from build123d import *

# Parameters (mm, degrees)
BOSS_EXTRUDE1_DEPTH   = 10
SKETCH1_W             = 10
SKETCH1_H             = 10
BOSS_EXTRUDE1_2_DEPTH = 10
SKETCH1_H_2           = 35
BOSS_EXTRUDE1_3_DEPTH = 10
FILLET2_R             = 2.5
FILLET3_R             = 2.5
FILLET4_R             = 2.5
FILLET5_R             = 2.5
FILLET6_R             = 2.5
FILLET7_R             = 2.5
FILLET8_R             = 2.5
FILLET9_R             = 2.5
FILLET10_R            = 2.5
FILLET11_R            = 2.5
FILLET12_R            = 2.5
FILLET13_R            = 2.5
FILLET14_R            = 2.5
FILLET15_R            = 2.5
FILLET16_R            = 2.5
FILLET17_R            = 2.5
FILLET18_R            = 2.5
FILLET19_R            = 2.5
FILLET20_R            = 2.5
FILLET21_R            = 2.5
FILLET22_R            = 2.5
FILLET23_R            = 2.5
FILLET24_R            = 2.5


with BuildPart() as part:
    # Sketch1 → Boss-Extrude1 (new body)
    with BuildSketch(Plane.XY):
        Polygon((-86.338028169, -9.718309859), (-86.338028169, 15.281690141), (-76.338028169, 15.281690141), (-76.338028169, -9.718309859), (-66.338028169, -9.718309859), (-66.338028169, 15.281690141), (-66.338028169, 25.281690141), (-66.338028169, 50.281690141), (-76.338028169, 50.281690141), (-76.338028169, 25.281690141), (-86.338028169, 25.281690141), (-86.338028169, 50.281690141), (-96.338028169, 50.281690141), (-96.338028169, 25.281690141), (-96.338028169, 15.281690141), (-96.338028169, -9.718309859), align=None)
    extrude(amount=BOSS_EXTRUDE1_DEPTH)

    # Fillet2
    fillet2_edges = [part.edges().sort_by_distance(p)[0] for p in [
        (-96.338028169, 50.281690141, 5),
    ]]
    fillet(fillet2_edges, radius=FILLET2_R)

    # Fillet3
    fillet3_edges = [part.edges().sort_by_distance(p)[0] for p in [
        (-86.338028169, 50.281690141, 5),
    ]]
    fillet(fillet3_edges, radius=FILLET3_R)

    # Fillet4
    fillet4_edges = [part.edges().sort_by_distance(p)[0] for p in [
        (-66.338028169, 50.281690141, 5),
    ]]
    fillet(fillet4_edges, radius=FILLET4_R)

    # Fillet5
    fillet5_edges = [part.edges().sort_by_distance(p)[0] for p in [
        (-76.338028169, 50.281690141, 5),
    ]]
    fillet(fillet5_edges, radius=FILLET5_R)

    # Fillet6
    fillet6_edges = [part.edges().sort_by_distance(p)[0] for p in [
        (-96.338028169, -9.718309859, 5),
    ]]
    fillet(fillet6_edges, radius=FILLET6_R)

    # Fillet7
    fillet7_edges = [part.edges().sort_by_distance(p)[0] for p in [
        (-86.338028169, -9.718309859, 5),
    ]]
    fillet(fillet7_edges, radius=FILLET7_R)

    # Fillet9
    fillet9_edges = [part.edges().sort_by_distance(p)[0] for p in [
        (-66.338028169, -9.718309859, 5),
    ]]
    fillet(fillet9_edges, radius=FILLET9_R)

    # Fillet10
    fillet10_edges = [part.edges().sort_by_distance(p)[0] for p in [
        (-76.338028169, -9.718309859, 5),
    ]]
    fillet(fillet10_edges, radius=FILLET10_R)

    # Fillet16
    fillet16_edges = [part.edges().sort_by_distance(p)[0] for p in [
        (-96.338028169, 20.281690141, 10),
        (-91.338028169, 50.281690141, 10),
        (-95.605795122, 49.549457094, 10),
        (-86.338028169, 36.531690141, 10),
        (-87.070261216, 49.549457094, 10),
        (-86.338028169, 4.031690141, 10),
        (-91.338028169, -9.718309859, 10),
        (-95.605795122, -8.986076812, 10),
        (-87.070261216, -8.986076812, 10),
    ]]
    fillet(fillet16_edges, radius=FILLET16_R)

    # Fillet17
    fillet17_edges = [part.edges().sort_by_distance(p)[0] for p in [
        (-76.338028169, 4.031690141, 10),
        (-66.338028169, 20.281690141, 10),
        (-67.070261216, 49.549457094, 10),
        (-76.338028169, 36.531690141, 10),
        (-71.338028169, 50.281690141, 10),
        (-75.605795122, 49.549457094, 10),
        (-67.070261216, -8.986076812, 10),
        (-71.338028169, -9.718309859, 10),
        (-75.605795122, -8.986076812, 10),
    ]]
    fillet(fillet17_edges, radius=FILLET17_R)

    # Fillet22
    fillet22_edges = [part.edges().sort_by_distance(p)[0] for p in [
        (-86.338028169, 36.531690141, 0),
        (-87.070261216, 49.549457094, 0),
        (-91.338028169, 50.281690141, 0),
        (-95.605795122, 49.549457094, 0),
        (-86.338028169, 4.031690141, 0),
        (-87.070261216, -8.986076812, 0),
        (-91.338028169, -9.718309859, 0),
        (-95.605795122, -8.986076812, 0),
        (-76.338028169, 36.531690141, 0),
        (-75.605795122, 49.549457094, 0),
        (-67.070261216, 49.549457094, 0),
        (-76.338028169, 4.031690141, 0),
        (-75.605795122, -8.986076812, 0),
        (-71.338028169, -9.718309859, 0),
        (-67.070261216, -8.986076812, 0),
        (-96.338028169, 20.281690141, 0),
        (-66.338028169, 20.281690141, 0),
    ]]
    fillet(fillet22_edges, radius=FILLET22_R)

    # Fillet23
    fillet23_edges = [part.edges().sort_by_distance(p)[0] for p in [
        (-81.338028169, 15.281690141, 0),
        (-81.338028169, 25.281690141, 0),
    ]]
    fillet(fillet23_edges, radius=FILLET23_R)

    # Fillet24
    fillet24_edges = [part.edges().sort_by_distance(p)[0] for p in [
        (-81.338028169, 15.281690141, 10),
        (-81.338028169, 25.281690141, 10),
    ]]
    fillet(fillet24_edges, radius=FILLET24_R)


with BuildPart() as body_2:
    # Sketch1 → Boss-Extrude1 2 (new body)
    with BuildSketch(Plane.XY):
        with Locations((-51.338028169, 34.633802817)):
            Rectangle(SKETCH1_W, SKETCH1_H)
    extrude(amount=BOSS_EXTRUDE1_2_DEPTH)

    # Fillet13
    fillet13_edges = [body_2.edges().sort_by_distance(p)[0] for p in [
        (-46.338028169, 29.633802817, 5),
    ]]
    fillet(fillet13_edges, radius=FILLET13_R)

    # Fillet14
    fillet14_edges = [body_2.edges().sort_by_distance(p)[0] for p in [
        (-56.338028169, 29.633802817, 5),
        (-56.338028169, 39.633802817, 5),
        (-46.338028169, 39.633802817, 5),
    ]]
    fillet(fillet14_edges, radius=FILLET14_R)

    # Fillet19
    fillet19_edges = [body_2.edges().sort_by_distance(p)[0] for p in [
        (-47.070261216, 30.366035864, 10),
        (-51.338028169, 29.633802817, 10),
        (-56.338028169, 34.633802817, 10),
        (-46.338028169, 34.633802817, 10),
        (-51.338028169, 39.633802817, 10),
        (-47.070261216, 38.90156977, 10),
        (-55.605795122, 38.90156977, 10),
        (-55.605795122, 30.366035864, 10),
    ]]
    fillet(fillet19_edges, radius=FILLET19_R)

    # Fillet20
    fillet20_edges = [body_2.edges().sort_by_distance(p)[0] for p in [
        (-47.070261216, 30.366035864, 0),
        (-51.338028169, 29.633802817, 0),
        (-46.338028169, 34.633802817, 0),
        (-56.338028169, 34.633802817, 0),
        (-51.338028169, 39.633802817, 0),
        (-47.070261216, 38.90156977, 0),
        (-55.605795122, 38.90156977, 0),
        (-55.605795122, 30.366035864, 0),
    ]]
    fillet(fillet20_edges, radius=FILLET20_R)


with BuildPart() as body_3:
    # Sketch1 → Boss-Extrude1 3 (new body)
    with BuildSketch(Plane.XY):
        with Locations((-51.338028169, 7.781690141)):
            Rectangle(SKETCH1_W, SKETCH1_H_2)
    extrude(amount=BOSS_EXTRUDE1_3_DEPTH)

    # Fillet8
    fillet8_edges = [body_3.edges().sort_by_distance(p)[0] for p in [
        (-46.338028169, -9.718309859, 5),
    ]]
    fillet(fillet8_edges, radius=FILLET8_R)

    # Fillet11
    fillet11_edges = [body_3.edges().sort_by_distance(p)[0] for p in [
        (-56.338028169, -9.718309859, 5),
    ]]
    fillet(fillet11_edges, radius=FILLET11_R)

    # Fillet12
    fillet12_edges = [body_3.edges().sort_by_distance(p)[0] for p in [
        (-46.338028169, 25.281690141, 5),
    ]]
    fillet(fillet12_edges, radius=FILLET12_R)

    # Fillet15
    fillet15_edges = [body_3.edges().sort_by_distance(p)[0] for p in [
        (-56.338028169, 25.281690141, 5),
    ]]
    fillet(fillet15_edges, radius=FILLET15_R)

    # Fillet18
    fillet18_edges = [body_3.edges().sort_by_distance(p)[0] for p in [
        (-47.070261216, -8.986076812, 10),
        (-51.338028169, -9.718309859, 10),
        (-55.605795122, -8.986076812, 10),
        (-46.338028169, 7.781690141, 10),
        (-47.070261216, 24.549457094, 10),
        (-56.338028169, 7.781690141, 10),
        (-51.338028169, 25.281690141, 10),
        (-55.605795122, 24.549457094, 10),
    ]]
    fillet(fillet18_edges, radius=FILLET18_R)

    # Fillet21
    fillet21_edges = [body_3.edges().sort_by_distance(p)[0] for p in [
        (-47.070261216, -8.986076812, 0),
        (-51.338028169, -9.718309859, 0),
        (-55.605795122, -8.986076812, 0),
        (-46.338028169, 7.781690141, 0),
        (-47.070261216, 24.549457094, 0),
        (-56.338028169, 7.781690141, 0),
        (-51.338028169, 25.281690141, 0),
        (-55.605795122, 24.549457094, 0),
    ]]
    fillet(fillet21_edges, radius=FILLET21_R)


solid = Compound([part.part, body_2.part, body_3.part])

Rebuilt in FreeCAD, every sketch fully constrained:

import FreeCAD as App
import Part
import Sketcher
Q = App.Units.Quantity


def edges_at(feature, points):
    """Names of the edges that pass closest to the given points."""
    edges = feature.Shape.Edges
    near = lambda p: min(range(len(edges)), key=lambda i: edges[i].distToShape(Part.Vertex(*p))[0])
    return sorted({f"Edge{near(p) + 1}" for p in points})


def add_polygon(sketch, points):
    """Adds a closed chain of lines whose ends are joined by coincident constraints."""
    first, n = sketch.GeometryCount, len(points)
    for a, b in zip(points, points[1:] + points[:1]):
        sketch.addGeometry(Part.LineSegment(App.Vector(*a, 0), App.Vector(*b, 0)), False)
    for i in range(n):
        sketch.addConstraint(Sketcher.Constraint("Coincident", first + i, 2, first + (i + 1) % n, 1))

doc = App.newDocument("Part")
params = doc.addObject("Spreadsheet::Sheet", "Params")
for row, (alias, value) in enumerate([
    ("sketch1_width", "10 mm"),
    ("sketch1_height", "25 mm"),
    ("sketch1_height2", "60 mm"),
    ("pad1_length", "10 mm"),
    ("fillet_radius", "2.5 mm"),
    ("fillet2_radius", "2.5 mm"),
    ("fillet3_radius", "2.5 mm"),
    ("fillet4_radius", "2.5 mm"),
    ("fillet5_radius", "2.5 mm"),
    ("fillet6_radius", "2.5 mm"),
    ("fillet7_radius", "2.5 mm"),
    ("fillet8_radius", "2.5 mm"),
    ("fillet9_radius", "2.5 mm"),
    ("fillet10_radius", "2.5 mm"),
    ("fillet11_radius", "2.5 mm"),
    ("fillet12_radius", "2.5 mm"),
    ("fillet13_radius", "2.5 mm"),
    ("sketch2_width", "10 mm"),
    ("pad2_length", "10 mm"),
    ("fillet14_radius", "2.5 mm"),
    ("fillet15_radius", "2.5 mm"),
    ("fillet16_radius", "2.5 mm"),
    ("fillet17_radius", "2.5 mm"),
    ("sketch3_width", "10 mm"),
    ("sketch3_height", "35 mm"),
    ("pad3_length", "10 mm"),
    ("fillet18_radius", "2.5 mm"),
    ("fillet19_radius", "2.5 mm"),
    ("fillet20_radius", "2.5 mm"),
    ("fillet21_radius", "2.5 mm"),
    ("fillet22_radius", "2.5 mm"),
    ("fillet23_radius", "2.5 mm"),
], start=1):
    params.set(f"A{row}", alias)
    params.set(f"B{row}", "=" + value)
    params.setAlias(f"B{row}", alias)

body = doc.addObject("PartDesign::Body", "Body")

# Sketch on XY plane
sketch1 = body.newObject("Sketcher::SketchObject", "Sketch")
sketch1.AttachmentSupport = (doc.getObject("XY_Plane"), [""])
sketch1.MapMode = "FlatFace"
add_polygon(sketch1, [(-86, -10), (-86, 15), (-76, 15), (-76, -10), (-66, -10), (-66, 50), (-76, 50), (-76, 25), (-86, 25), (-86, 50), (-96, 50), (-96, -10)])  # lines 0-11
sketch1.addConstraint(Sketcher.Constraint("Vertical", 0))
sketch1.addConstraint(Sketcher.Constraint("Horizontal", 1))
sketch1.addConstraint(Sketcher.Constraint("Vertical", 2))
sketch1.addConstraint(Sketcher.Constraint("Horizontal", 3))
sketch1.addConstraint(Sketcher.Constraint("Vertical", 4))
sketch1.addConstraint(Sketcher.Constraint("Horizontal", 5))
sketch1.addConstraint(Sketcher.Constraint("Vertical", 6))
sketch1.addConstraint(Sketcher.Constraint("Horizontal", 7))
sketch1.addConstraint(Sketcher.Constraint("Vertical", 8))
sketch1.addConstraint(Sketcher.Constraint("Horizontal", 9))
sketch1.addConstraint(Sketcher.Constraint("Vertical", 10))
sketch1.addConstraint(Sketcher.Constraint("Horizontal", 11))
sketch1.addConstraint(Sketcher.Constraint("Horizontal", 5, 2, 8, 2))
sketch1.addConstraint(Sketcher.Constraint("Horizontal", 3, 2, 10, 2))
sketch1.addConstraint(Sketcher.Constraint("Vertical", 2, 2, 5, 2))
sketch1.addConstraint(Sketcher.Constraint("Vertical", 0, 2, 7, 2))
sketch1.addConstraint(Sketcher.Constraint("Equal", 1, 3))
sketch1.addConstraint(Sketcher.Constraint("Equal", 7, 9))
sketch1.addConstraint(Sketcher.Constraint("Equal", 2, 6))
sketch1.addConstraint(Sketcher.Constraint("DistanceX", 1, 1, 1, 2, Q("10 mm")))
sketch1.addConstraint(Sketcher.Constraint("DistanceY", 0, 1, 0, 2, Q("25 mm")))
sketch1.addConstraint(Sketcher.Constraint("DistanceY", 4, 1, 4, 2, Q("60 mm")))
sketch1.addConstraint(Sketcher.Constraint("DistanceX", 0, 2, -1, 1, Q("86.338028 mm")))
sketch1.addConstraint(Sketcher.Constraint("DistanceY", -1, 1, 0, 2, Q("15.28169 mm")))
sketch1.setExpression("Constraints[31]", "Params.sketch1_width")
sketch1.setExpression("Constraints[32]", "Params.sketch1_height")
sketch1.setExpression("Constraints[33]", "Params.sketch1_height2")
pad1 = body.newObject("PartDesign::Pad", "Pad")
pad1.Profile = sketch1
pad1.setExpression("Length", "Params.pad1_length")
doc.recompute()

fillet = body.newObject("PartDesign::Fillet", "Fillet")
fillet.Base = (pad1, edges_at(pad1, [(-96.338, 50.282, 5)]))
fillet.setExpression("Radius", "Params.fillet_radius")
doc.recompute()

fillet2 = body.newObject("PartDesign::Fillet", "Fillet001")
fillet2.Base = (fillet, edges_at(fillet, [(-86.338, 50.282, 5)]))
fillet2.setExpression("Radius", "Params.fillet2_radius")
doc.recompute()

fillet3 = body.newObject("PartDesign::Fillet", "Fillet002")
fillet3.Base = (fillet2, edges_at(fillet2, [(-66.338, 50.282, 5)]))
fillet3.setExpression("Radius", "Params.fillet3_radius")
doc.recompute()

fillet4 = body.newObject("PartDesign::Fillet", "Fillet003")
fillet4.Base = (fillet3, edges_at(fillet3, [(-76.338, 50.282, 5)]))
fillet4.setExpression("Radius", "Params.fillet4_radius")
doc.recompute()

fillet5 = body.newObject("PartDesign::Fillet", "Fillet004")
fillet5.Base = (fillet4, edges_at(fillet4, [(-96.338, -9.718, 5)]))
fillet5.setExpression("Radius", "Params.fillet5_radius")
doc.recompute()

fillet6 = body.newObject("PartDesign::Fillet", "Fillet005")
fillet6.Base = (fillet5, edges_at(fillet5, [(-86.338, -9.718, 5)]))
fillet6.setExpression("Radius", "Params.fillet6_radius")
doc.recompute()

fillet7 = body.newObject("PartDesign::Fillet", "Fillet006")
fillet7.Base = (fillet6, edges_at(fillet6, [(-66.338, -9.718, 5)]))
fillet7.setExpression("Radius", "Params.fillet7_radius")
doc.recompute()

fillet8 = body.newObject("PartDesign::Fillet", "Fillet007")
fillet8.Base = (fillet7, edges_at(fillet7, [(-76.338, -9.718, 5)]))
fillet8.setExpression("Radius", "Params.fillet8_radius")
doc.recompute()

fillet9 = body.newObject("PartDesign::Fillet", "Fillet008")
fillet9.Base = (fillet8, edges_at(fillet8, [
    (-96.338, 20.282, 10),
    (-91.338, 50.282, 10),
    (-95.606, 49.549, 10),
    (-86.338, 36.532, 10),
    (-87.07, 49.549, 10),
    (-86.338, 4.032, 10),
    (-91.338, -9.718, 10),
    (-95.606, -8.986, 10),
    (-87.07, -8.986, 10),
]))
fillet9.setExpression("Radius", "Params.fillet9_radius")
doc.recompute()

fillet10 = body.newObject("PartDesign::Fillet", "Fillet009")
fillet10.Base = (fillet9, edges_at(fillet9, [
    (-76.338, 4.032, 10),
    (-66.338, 20.282, 10),
    (-67.07, 49.549, 10),
    (-76.338, 36.532, 10),
    (-71.338, 50.282, 10),
    (-75.606, 49.549, 10),
    (-67.07, -8.986, 10),
    (-71.338, -9.718, 10),
    (-75.606, -8.986, 10),
]))
fillet10.setExpression("Radius", "Params.fillet10_radius")
doc.recompute()

fillet11 = body.newObject("PartDesign::Fillet", "Fillet010")
fillet11.Base = (fillet10, edges_at(fillet10, [
    (-86.338, 36.532, 0),
    (-87.07, 49.549, 0),
    (-91.338, 50.282, 0),
    (-95.606, 49.549, 0),
    (-86.338, 4.032, 0),
    (-87.07, -8.986, 0),
    (-91.338, -9.718, 0),
    (-95.606, -8.986, 0),
    (-76.338, 36.532, 0),
    (-75.606, 49.549, 0),
    (-67.07, 49.549, 0),
    (-76.338, 4.032, 0),
    (-75.606, -8.986, 0),
    (-71.338, -9.718, 0),
    (-67.07, -8.986, 0),
    (-96.338, 20.282, 0),
    (-66.338, 20.282, 0),
]))
fillet11.setExpression("Radius", "Params.fillet11_radius")
doc.recompute()

fillet12 = body.newObject("PartDesign::Fillet", "Fillet011")
fillet12.Base = (fillet11, edges_at(fillet11, [(-81.338, 15.282, 0), (-81.338, 25.282, 0)]))
fillet12.setExpression("Radius", "Params.fillet12_radius")
doc.recompute()

fillet13 = body.newObject("PartDesign::Fillet", "Fillet012")
fillet13.Base = (fillet12, edges_at(fillet12, [(-81.338, 15.282, 10), (-81.338, 25.282, 10)]))
fillet13.setExpression("Radius", "Params.fillet13_radius")
body2 = doc.addObject("PartDesign::Body", "Body001")

# Sketch on XY plane
sketch2 = body2.newObject("Sketcher::SketchObject", "Sketch001")
sketch2.AttachmentSupport = (doc.getObject("XY_Plane001"), [""])
sketch2.MapMode = "FlatFace"
add_polygon(sketch2, [(-56, 40), (-56, 30), (-46, 30), (-46, 40)])  # lines 0-3
sketch2.addConstraint(Sketcher.Constraint("Vertical", 0))
sketch2.addConstraint(Sketcher.Constraint("Horizontal", 1))
sketch2.addConstraint(Sketcher.Constraint("Vertical", 2))
sketch2.addConstraint(Sketcher.Constraint("Horizontal", 3))
sketch2.addConstraint(Sketcher.Constraint("Equal", 3, 0))
sketch2.addConstraint(Sketcher.Constraint("DistanceX", 1, 1, 1, 2, Q("10 mm")))
sketch2.addConstraint(Sketcher.Constraint("DistanceX", 0, 2, -1, 1, Q("56.338028 mm")))
sketch2.addConstraint(Sketcher.Constraint("DistanceY", -1, 1, 0, 2, Q("29.633803 mm")))
sketch2.setExpression("Constraints[9]", "Params.sketch2_width")
pad2 = body2.newObject("PartDesign::Pad", "Pad001")
pad2.Profile = sketch2
pad2.setExpression("Length", "Params.pad2_length")
doc.recompute()

fillet14 = body2.newObject("PartDesign::Fillet", "Fillet013")
fillet14.Base = (pad2, edges_at(pad2, [(-46.338, 29.634, 5)]))
fillet14.setExpression("Radius", "Params.fillet14_radius")
doc.recompute()

fillet15 = body2.newObject("PartDesign::Fillet", "Fillet014")
fillet15.Base = (fillet14, edges_at(fillet14, [(-56.338, 29.634, 5), (-56.338, 39.634, 5), (-46.338, 39.634, 5)]))
fillet15.setExpression("Radius", "Params.fillet15_radius")
doc.recompute()

fillet16 = body2.newObject("PartDesign::Fillet", "Fillet015")
fillet16.Base = (fillet15, edges_at(fillet15, [
    (-47.07, 30.366, 10),
    (-51.338, 29.634, 10),
    (-56.338, 34.634, 10),
    (-46.338, 34.634, 10),
    (-51.338, 39.634, 10),
    (-47.07, 38.902, 10),
    (-55.606, 38.902, 10),
    (-55.606, 30.366, 10),
]))
fillet16.setExpression("Radius", "Params.fillet16_radius")
doc.recompute()

fillet17 = body2.newObject("PartDesign::Fillet", "Fillet016")
fillet17.Base = (fillet16, edges_at(fillet16, [
    (-47.07, 30.366, 0),
    (-51.338, 29.634, 0),
    (-46.338, 34.634, 0),
    (-56.338, 34.634, 0),
    (-51.338, 39.634, 0),
    (-47.07, 38.902, 0),
    (-55.606, 38.902, 0),
    (-55.606, 30.366, 0),
]))
fillet17.setExpression("Radius", "Params.fillet17_radius")
body3 = doc.addObject("PartDesign::Body", "Body002")

# Sketch on XY plane
sketch3 = body3.newObject("Sketcher::SketchObject", "Sketch002")
sketch3.AttachmentSupport = (doc.getObject("XY_Plane002"), [""])
sketch3.MapMode = "FlatFace"
add_polygon(sketch3, [(-56, 25), (-56, -10), (-46, -10), (-46, 25)])  # lines 0-3
sketch3.addConstraint(Sketcher.Constraint("Vertical", 0))
sketch3.addConstraint(Sketcher.Constraint("Horizontal", 1))
sketch3.addConstraint(Sketcher.Constraint("Vertical", 2))
sketch3.addConstraint(Sketcher.Constraint("Horizontal", 3))
sketch3.addConstraint(Sketcher.Constraint("DistanceX", 1, 1, 1, 2, Q("10 mm")))
sketch3.addConstraint(Sketcher.Constraint("DistanceY", 0, 2, 0, 1, Q("35 mm")))
sketch3.addConstraint(Sketcher.Constraint("DistanceX", 0, 2, -1, 1, Q("56.338028 mm")))
sketch3.addConstraint(Sketcher.Constraint("DistanceY", 0, 2, -1, 1, Q("9.71831 mm")))
sketch3.setExpression("Constraints[8]", "Params.sketch3_width")
sketch3.setExpression("Constraints[9]", "Params.sketch3_height")
pad3 = body3.newObject("PartDesign::Pad", "Pad002")
pad3.Profile = sketch3
pad3.setExpression("Length", "Params.pad3_length")
doc.recompute()

fillet18 = body3.newObject("PartDesign::Fillet", "Fillet017")
fillet18.Base = (pad3, edges_at(pad3, [(-46.338, -9.718, 5)]))
fillet18.setExpression("Radius", "Params.fillet18_radius")
doc.recompute()

fillet19 = body3.newObject("PartDesign::Fillet", "Fillet018")
fillet19.Base = (fillet18, edges_at(fillet18, [(-56.338, -9.718, 5)]))
fillet19.setExpression("Radius", "Params.fillet19_radius")
doc.recompute()

fillet20 = body3.newObject("PartDesign::Fillet", "Fillet019")
fillet20.Base = (fillet19, edges_at(fillet19, [(-46.338, 25.282, 5)]))
fillet20.setExpression("Radius", "Params.fillet20_radius")
doc.recompute()

fillet21 = body3.newObject("PartDesign::Fillet", "Fillet020")
fillet21.Base = (fillet20, edges_at(fillet20, [(-56.338, 25.282, 5)]))
fillet21.setExpression("Radius", "Params.fillet21_radius")
doc.recompute()

fillet22 = body3.newObject("PartDesign::Fillet", "Fillet021")
fillet22.Base = (fillet21, edges_at(fillet21, [
    (-47.07, -8.986, 10),
    (-51.338, -9.718, 10),
    (-55.606, -8.986, 10),
    (-46.338, 7.782, 10),
    (-47.07, 24.549, 10),
    (-56.338, 7.782, 10),
    (-51.338, 25.282, 10),
    (-55.606, 24.549, 10),
]))
fillet22.setExpression("Radius", "Params.fillet22_radius")
doc.recompute()

fillet23 = body3.newObject("PartDesign::Fillet", "Fillet022")
fillet23.Base = (fillet22, edges_at(fillet22, [
    (-47.07, -8.986, 0),
    (-51.338, -9.718, 0),
    (-55.606, -8.986, 0),
    (-46.338, 7.782, 0),
    (-47.07, 24.549, 0),
    (-56.338, 7.782, 0),
    (-51.338, 25.282, 0),
    (-55.606, 24.549, 0),
]))
fillet23.setExpression("Radius", "Params.fillet23_radius")

doc.recompute()
